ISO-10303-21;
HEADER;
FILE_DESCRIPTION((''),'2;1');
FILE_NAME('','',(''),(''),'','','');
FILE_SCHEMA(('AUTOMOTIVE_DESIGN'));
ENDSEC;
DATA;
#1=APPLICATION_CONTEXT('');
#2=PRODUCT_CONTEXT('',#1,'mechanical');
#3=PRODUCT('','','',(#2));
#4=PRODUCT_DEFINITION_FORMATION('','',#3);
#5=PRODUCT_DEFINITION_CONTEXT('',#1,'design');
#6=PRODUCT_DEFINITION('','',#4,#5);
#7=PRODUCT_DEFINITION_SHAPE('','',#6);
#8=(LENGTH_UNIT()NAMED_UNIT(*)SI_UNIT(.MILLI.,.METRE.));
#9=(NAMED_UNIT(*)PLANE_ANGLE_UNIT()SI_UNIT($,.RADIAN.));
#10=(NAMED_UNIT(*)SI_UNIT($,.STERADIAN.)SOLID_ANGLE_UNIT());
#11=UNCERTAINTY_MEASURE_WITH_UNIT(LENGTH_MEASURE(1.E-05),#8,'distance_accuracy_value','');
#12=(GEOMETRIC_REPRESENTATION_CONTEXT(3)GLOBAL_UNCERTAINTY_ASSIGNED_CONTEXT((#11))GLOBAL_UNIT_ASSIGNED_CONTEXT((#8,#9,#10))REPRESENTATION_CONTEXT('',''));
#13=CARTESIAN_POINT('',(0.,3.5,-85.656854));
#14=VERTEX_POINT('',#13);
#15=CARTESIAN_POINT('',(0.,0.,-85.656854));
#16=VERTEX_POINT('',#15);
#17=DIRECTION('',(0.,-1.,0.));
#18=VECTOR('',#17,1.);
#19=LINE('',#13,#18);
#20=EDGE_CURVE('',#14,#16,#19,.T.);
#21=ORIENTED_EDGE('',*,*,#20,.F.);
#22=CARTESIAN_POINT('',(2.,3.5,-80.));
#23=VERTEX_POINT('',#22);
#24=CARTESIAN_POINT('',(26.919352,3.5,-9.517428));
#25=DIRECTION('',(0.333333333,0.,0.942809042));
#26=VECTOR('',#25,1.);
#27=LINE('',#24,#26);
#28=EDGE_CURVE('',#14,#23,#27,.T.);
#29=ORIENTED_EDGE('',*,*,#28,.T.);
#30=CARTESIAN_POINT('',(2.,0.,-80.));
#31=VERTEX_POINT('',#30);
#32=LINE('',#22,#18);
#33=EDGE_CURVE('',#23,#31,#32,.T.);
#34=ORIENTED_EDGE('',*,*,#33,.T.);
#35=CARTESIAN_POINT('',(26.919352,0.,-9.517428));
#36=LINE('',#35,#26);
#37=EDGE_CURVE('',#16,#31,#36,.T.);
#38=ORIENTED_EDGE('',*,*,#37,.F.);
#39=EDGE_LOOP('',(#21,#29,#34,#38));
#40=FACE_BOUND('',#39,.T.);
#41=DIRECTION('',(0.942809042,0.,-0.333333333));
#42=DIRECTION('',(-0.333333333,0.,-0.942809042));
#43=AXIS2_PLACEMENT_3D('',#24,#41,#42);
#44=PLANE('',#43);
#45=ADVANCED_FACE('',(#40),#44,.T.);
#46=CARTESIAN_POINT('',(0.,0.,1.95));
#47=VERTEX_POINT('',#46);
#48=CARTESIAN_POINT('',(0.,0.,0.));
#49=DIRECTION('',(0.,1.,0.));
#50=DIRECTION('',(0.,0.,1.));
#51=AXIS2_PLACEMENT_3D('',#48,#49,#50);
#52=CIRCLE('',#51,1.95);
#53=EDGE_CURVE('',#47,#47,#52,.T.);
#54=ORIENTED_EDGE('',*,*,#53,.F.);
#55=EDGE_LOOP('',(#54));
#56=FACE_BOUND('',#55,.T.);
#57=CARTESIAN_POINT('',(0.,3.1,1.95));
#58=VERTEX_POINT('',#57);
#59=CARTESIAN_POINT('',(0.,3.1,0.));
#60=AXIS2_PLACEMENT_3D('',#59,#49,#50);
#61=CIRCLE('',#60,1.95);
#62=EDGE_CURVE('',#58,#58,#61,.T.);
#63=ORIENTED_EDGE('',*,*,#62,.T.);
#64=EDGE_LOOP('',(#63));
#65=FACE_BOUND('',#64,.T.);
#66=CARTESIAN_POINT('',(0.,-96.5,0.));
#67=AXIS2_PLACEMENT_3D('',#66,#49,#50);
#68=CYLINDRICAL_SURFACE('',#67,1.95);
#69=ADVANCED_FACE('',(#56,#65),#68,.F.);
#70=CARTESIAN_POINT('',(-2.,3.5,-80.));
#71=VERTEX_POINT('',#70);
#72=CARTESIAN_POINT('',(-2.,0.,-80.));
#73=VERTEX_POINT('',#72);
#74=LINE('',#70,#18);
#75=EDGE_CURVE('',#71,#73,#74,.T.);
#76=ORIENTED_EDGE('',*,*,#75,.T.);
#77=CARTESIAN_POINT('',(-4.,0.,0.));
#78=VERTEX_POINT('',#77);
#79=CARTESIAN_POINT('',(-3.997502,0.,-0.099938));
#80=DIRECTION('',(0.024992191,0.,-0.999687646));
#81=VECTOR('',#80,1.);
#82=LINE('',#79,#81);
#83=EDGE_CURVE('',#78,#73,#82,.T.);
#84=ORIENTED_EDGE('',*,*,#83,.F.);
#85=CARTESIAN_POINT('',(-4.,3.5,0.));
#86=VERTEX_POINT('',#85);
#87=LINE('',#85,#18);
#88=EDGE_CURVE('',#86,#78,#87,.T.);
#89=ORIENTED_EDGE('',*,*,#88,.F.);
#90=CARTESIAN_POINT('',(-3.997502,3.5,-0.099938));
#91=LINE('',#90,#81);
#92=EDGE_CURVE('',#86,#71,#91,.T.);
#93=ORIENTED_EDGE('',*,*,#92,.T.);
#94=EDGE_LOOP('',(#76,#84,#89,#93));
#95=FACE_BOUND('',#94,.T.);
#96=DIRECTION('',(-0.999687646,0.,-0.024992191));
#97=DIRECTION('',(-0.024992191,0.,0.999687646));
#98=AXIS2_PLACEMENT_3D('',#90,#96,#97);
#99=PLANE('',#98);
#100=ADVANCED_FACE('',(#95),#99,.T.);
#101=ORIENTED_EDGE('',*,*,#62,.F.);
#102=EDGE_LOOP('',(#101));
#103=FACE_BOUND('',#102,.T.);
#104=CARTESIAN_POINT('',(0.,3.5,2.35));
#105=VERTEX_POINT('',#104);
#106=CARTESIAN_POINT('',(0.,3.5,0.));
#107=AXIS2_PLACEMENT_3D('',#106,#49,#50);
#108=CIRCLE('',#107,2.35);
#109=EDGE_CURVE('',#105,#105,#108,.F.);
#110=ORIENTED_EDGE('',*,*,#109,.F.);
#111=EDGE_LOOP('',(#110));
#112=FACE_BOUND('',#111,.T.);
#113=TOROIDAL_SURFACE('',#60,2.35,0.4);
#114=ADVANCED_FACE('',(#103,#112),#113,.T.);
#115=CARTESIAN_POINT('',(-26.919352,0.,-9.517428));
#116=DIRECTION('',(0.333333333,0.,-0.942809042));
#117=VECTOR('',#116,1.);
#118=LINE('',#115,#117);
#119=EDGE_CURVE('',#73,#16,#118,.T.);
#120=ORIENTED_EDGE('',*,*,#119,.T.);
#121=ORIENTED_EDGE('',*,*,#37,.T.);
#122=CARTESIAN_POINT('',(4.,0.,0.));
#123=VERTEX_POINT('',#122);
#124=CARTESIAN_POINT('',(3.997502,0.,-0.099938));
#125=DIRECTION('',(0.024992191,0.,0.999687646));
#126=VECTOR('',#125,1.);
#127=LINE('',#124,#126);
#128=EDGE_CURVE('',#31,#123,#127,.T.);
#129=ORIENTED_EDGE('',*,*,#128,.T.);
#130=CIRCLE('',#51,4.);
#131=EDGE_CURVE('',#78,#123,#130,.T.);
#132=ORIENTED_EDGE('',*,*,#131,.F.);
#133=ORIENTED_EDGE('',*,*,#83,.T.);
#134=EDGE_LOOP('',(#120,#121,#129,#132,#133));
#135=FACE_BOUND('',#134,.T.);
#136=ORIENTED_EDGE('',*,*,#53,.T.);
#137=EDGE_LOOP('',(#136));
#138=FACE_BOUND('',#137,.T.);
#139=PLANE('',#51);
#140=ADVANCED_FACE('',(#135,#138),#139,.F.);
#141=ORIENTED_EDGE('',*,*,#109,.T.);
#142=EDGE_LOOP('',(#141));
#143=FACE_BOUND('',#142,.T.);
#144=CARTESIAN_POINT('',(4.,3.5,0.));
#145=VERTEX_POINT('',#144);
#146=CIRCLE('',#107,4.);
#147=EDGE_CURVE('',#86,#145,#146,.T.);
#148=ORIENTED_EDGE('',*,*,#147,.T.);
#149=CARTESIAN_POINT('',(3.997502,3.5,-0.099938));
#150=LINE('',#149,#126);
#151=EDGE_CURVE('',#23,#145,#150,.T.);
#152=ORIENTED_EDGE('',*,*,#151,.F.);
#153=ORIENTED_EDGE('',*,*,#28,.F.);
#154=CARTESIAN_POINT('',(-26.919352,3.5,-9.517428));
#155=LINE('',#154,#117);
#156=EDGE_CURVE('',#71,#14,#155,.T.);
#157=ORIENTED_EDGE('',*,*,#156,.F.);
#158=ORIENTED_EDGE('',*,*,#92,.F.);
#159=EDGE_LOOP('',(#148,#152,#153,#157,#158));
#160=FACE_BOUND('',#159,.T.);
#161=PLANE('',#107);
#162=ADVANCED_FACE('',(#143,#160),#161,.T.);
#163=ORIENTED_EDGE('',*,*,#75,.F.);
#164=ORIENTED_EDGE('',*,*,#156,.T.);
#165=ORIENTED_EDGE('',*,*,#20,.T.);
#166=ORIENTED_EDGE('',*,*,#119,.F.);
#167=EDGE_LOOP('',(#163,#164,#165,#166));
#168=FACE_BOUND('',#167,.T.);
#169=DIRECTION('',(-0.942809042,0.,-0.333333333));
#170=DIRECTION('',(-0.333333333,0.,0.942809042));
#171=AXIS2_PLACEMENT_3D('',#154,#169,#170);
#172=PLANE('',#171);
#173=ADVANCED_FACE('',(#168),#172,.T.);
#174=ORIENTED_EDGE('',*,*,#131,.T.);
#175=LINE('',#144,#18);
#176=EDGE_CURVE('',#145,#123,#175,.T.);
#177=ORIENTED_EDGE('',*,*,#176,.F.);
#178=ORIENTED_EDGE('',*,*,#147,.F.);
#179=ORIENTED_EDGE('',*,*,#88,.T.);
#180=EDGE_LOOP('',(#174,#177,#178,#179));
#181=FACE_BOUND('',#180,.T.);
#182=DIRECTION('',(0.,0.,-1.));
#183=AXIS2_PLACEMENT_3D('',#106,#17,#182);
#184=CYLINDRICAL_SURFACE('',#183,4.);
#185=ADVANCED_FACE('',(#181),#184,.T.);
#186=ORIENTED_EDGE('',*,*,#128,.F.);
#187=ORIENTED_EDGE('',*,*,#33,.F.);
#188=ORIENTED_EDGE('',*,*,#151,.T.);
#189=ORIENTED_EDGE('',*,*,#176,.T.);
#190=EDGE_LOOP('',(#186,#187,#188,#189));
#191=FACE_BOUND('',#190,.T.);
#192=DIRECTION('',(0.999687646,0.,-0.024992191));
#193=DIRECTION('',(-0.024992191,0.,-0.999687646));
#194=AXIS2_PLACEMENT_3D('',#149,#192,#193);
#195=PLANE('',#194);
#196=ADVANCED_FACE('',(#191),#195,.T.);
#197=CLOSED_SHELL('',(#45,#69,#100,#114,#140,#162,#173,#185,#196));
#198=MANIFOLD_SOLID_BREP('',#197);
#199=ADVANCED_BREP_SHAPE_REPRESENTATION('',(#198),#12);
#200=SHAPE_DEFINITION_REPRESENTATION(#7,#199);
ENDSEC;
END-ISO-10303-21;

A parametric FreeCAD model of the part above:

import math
import FreeCAD as App
import Part
import Sketcher


def edges_at(feature, points):
    """Names of the edges that pass closest to the given points."""
    edges = feature.Shape.Edges
    near = lambda p: min(range(len(edges)), key=lambda i: edges[i].distToShape(Part.Vertex(*p))[0])
    return sorted({f"Edge{near(p) + 1}" for p in points})

doc = App.newDocument("Part")
body = doc.addObject("PartDesign::Body", "Body")

# Sketch on XZ plane
sketch1 = body.newObject("Sketcher::SketchObject", "Sketch")
sketch1.AttachmentSupport = (doc.getObject("XZ_Plane"), [""])
sketch1.MapMode = "FlatFace"
sketch1.addGeometry([
    Part.LineSegment(App.Vector(-2, -80, 0), App.Vector(-3.995003, -0.199875, 0)),  # 0
    Part.LineSegment(App.Vector(-3.995003, -0.199875, 0), App.Vector(-4, 0, 0)),  # 1
    Part.ArcOfCircle(Part.Circle(App.Vector(0, 0, 0), App.Vector(0, 0, 1), 4), math.radians(0), math.radians(180)),  # 2
    Part.LineSegment(App.Vector(4, 0, 0), App.Vector(3.995003, -0.199875, 0)),  # 3
    Part.LineSegment(App.Vector(3.995003, -0.199875, 0), App.Vector(2, -80, 0)),  # 4
    Part.LineSegment(App.Vector(2, -80, 0), App.Vector(0, -85.656854, 0)),  # 5
    Part.LineSegment(App.Vector(0, -85.656854, 0), App.Vector(-2, -80, 0)),  # 6
    Part.Circle(App.Vector(0, 0, 0), App.Vector(0, 0, 1), 1.75),  # 7
], False)
sketch1.addConstraint([
    Sketcher.Constraint("Coincident", 0, 2, 1, 1),
    Sketcher.Constraint("Coincident", 1, 2, 2, 2),
    Sketcher.Constraint("Coincident", 2, 1, 3, 1),
    Sketcher.Constraint("Coincident", 3, 2, 4, 1),
    Sketcher.Constraint("Coincident", 4, 2, 5, 1),
    Sketcher.Constraint("Coincident", 5, 2, 6, 1),
    Sketcher.Constraint("Coincident", 6, 2, 0, 1),
    Sketcher.Constraint("Coincident", 2, 3, -1, 1),
    Sketcher.Constraint("Coincident", 7, 3, -1, 1),
    Sketcher.Constraint("Symmetric", 0, 2, 3, 2, -2),
    Sketcher.Constraint("Symmetric", 4, 2, 6, 2, -2),
    Sketcher.Constraint("PointOnObject", 1, 2, -1),
    Sketcher.Constraint("PointOnObject", 2, 1, -1),
    Sketcher.Constraint("PointOnObject", 5, 2, -2),
    Sketcher.Constraint("Parallel", 0, 1),
    Sketcher.Constraint("Radius", 2, 4.0),
    Sketcher.Constraint("Diameter", 7, 3.5),
    Sketcher.Constraint("Distance", 5, 6.0),
    Sketcher.Constraint("DistanceX", -1, 1, 4, 2, 2.0),
    Sketcher.Constraint("DistanceY", 4, 2, -1, 1, 80.0),
    Sketcher.Constraint("Distance", 0, 79.825059),
])
pad1 = body.newObject("PartDesign::Pad", "Pad")
pad1.Profile = sketch1
pad1.Length = 3.5
pad1.Reversed = True

# Sketch on XZ plane
sketch2 = body.newObject("Sketcher::SketchObject", "Sketch001")
sketch2.AttachmentSupport = (doc.getObject("XZ_Plane"), [""])
sketch2.MapMode = "FlatFace"
sketch2.AttachmentOffset = App.Placement(App.Vector(0, 0, -3.5), App.Rotation())
sketch2.addGeometry(Part.Circle(App.Vector(0, 0, 0), App.Vector(0, 0, 1), 1.95), False)
sketch2.addConstraint([
    Sketcher.Constraint("Coincident", 0, 3, -1, 1),
    Sketcher.Constraint("Diameter", 0, 3.9),
])
pocket1 = body.newObject("PartDesign::Pocket", "Pocket")
pocket1.Profile = sketch2
pocket1.Length = 100
pocket1.Reversed = True
doc.recompute()

fillet = body.newObject("PartDesign::Fillet", "Fillet")
fillet.Base = (pocket1, edges_at(pocket1, [(0, 3.5, -1.95)]))
fillet.Radius = 0.4

doc.recompute()
